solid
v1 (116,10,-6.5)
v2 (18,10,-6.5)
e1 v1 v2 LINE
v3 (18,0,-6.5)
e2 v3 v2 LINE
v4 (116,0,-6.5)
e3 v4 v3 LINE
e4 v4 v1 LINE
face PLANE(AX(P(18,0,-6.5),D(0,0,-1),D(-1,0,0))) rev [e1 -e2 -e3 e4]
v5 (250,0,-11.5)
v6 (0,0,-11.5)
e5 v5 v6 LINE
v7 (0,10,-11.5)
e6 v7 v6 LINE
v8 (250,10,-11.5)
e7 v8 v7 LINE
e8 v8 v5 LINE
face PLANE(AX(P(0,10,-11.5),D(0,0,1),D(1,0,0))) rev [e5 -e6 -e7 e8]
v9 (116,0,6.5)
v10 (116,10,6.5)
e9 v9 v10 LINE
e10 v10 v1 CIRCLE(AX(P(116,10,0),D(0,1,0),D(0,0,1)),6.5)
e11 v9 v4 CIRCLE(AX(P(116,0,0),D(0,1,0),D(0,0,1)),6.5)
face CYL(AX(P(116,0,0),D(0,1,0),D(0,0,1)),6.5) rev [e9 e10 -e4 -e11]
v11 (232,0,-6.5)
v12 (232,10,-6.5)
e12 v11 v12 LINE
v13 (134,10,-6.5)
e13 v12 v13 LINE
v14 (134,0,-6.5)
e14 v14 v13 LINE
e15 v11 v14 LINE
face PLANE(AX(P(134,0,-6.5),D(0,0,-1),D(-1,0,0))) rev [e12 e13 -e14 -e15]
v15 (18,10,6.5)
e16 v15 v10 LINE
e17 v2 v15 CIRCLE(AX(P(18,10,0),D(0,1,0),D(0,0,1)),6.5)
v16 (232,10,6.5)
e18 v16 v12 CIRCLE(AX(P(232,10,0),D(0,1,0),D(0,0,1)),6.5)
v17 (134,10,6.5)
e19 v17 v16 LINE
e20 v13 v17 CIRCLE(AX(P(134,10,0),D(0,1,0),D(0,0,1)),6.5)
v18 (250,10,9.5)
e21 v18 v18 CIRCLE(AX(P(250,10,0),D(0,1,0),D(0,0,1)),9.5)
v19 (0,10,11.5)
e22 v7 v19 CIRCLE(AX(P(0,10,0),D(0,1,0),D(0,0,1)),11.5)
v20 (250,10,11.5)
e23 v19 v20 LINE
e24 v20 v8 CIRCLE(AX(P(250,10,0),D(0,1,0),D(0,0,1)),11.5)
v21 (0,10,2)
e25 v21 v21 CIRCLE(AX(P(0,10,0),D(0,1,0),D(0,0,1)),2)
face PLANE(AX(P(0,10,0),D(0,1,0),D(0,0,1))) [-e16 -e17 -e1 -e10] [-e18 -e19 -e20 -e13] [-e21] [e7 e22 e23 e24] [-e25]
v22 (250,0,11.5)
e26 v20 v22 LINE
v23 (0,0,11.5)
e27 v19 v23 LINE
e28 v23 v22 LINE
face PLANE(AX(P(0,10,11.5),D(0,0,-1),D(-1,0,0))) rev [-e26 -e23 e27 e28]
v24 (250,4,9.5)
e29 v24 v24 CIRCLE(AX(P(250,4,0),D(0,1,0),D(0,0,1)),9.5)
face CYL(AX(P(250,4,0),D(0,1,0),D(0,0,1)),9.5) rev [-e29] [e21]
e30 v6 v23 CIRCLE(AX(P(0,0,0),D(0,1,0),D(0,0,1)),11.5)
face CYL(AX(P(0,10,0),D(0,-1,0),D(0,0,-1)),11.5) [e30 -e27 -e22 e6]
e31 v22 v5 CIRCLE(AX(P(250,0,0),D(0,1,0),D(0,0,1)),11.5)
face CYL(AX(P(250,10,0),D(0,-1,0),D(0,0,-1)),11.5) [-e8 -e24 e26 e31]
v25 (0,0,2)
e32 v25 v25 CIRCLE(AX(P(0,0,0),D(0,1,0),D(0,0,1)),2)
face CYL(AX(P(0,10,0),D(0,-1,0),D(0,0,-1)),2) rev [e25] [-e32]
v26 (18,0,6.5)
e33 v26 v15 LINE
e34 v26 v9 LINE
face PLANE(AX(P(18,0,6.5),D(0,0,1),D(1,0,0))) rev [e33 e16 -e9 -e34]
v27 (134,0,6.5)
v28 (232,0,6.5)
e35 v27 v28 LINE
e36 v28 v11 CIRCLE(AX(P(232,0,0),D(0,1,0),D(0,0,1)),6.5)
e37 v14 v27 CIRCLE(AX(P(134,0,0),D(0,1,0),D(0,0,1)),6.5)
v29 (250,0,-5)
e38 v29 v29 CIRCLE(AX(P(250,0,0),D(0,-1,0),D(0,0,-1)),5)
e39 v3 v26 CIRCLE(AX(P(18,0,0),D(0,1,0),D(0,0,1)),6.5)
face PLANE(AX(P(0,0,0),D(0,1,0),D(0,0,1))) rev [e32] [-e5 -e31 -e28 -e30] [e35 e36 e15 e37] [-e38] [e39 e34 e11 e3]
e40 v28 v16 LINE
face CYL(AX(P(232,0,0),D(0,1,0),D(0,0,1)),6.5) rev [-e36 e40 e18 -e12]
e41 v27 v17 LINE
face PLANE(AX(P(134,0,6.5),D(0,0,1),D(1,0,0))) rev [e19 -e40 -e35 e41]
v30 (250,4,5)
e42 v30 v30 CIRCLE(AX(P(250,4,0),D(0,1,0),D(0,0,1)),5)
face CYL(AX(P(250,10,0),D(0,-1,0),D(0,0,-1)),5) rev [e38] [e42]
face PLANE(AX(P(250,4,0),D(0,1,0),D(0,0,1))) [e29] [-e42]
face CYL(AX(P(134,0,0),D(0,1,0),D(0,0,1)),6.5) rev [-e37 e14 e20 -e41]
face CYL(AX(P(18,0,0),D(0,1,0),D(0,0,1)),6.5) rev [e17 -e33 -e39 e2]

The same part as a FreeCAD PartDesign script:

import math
import FreeCAD as App
import Part
import Sketcher
from FreeCAD import Vector
Q = App.Units.Quantity

doc = App.newDocument("Part")
body = doc.addObject("PartDesign::Body", "Body")

sketch1 = body.newObject("Sketcher::SketchObject", "Sketch")
sketch1.AttachmentSupport = (doc.getObject("XZ_Plane"), [""])
sketch1.MapMode = "FlatFace"
sketch1.addGeometry([
    Part.LineSegment(Vector(250, -11.5, 0), Vector(0, -11.5, 0)),
    Part.ArcOfCircle(Part.Circle(Vector(0, 0, 0), Vector(0, 0, 1), 11.5), math.radians(90), math.radians(270)),
    Part.LineSegment(Vector(0, 11.5, 0), Vector(250, 11.5, 0)),
    Part.ArcOfCircle(Part.Circle(Vector(250, 0, 0), Vector(0, 0, 1), 11.5), math.radians(-90), math.radians(90)),
    Part.Circle(Vector(0, 0, 0), Vector(0, 0, 1), 2),
], False)
sketch1.addConstraint([
    Sketcher.Constraint("Tangent", 0, 2, 1, 2),
    Sketcher.Constraint("Tangent", 1, 1, 2, 1),
    Sketcher.Constraint("Tangent", 2, 2, 3, 2),
    Sketcher.Constraint("Tangent", 3, 1, 0, 1),
    Sketcher.Constraint("Horizontal", 0),
    Sketcher.Constraint("Horizontal", 2),
    Sketcher.Constraint("Coincident", 1, 3, -1, 1),
    Sketcher.Constraint("Coincident", 4, 3, -1, 1),
    Sketcher.Constraint("Diameter", 4, Q("4 mm")),
    Sketcher.Constraint("Radius", 1, Q("11.5 mm")),
    Sketcher.Constraint("DistanceX", 0, 2, 0, 1, Q("250 mm")),
])
pad1 = body.newObject("PartDesign::Pad", "Pad")
pad1.Profile = sketch1
pad1.Length = 10
pad1.Reversed = True

sketch2 = body.newObject("Sketcher::SketchObject", "Sketch001")
sketch2.AttachmentSupport = (doc.getObject("XZ_Plane"), [""])
sketch2.MapMode = "FlatFace"
sketch2.AttachmentOffset = App.Placement(Vector(0, 0, -10), App.Rotation())
sketch2.addGeometry(Part.Circle(Vector(250, 0, 0), Vector(0, 0, 1), 10), False)
sketch2.addConstraint([
    Sketcher.Constraint("PointOnObject", 0, 3, -1),
    Sketcher.Constraint("Diameter", 0, Q("19 mm")),
    Sketcher.Constraint("DistanceX", -1, 1, 0, 3, Q("250 mm")),
])
pocket1 = body.newObject("PartDesign::Pocket", "Pocket")
pocket1.Profile = sketch2
pocket1.Length = 6
pocket1.Reversed = True

sketch3 = body.newObject("Sketcher::SketchObject", "Sketch002")
sketch3.AttachmentSupport = (doc.getObject("XZ_Plane"), [""])
sketch3.MapMode = "FlatFace"
sketch3.addGeometry(Part.Circle(Vector(250, 0, 0), Vector(0, 0, 1), 5), False)
sketch3.addConstraint([
    Sketcher.Constraint("PointOnObject", 0, 3, -1),
    Sketcher.Constraint("Diameter", 0, Q("10 mm")),
    Sketcher.Constraint("DistanceX", -1, 1, 0, 3, Q("250 mm")),
])
pocket2 = body.newObject("PartDesign::Pocket", "Pocket001")
pocket2.Profile = sketch3
pocket2.Type = "ThroughAll"

sketch4 = body.newObject("Sketcher::SketchObject", "Sketch003")
sketch4.AttachmentSupport = (doc.getObject("XZ_Plane"), [""])
sketch4.MapMode = "FlatFace"
sketch4.AttachmentOffset = App.Placement(Vector(0, 0, -10), App.Rotation())
sketch4.addGeometry([
    Part.LineSegment(Vector(116, -6, 0), Vector(18, -6, 0)),
    Part.ArcOfCircle(Part.Circle(Vector(18, 0, 0), Vector(0, 0, 1), 6), math.radians(90), math.radians(270)),
    Part.LineSegment(Vector(18, 6, 0), Vector(116, 6, 0)),
    Part.ArcOfCircle(Part.Circle(Vector(116, 0, 0), Vector(0, 0, 1), 6), math.radians(-90), math.radians(90)),
    Part.LineSegment(Vector(232, -6, 0), Vector(134, -6, 0)),
    Part.ArcOfCircle(Part.Circle(Vector(134, 0, 0), Vector(0, 0, 1), 6), math.radians(90), math.radians(270)),
    Part.LineSegment(Vector(134, 6, 0), Vector(232, 6, 0)),
    Part.ArcOfCircle(Part.Circle(Vector(232, 0, 0), Vector(0, 0, 1), 6), math.radians(-90), math.radians(90)),
], False)
sketch4.addConstraint([
    Sketcher.Constraint("Tangent", 0, 2, 1, 2),
    Sketcher.Constraint("Tangent", 1, 1, 2, 1),
    Sketcher.Constraint("Tangent", 2, 2, 3, 2),
    Sketcher.Constraint("Tangent", 3, 1, 0, 1),
    Sketcher.Constraint("Tangent", 4, 2, 5, 2),
    Sketcher.Constraint("Tangent", 5, 1, 6, 1),
    Sketcher.Constraint("Tangent", 6, 2, 7, 2),
    Sketcher.Constraint("Tangent", 7, 1, 4, 1),
    Sketcher.Constraint("Horizontal", 0),
    Sketcher.Constraint("Horizontal", 2),
    Sketcher.Constraint("Horizontal", 4),
    Sketcher.Constraint("Horizontal", 6),
    Sketcher.Constraint("Equal", 3, 5),
    Sketcher.Constraint("PointOnObject", 1, 3, -1),
    Sketcher.Constraint("PointOnObject", 5, 3, -1),
    Sketcher.Constraint("Equal", 2, 4),
    Sketcher.Constraint("Radius", 1, Q("6.5 mm")),
    Sketcher.Constraint("DistanceX", 0, 2, 0, 1, Q("98 mm")),
    Sketcher.Constraint("DistanceX", -1, 1, 1, 3, Q("18 mm")),
    Sketcher.Constraint("DistanceX", -1, 1, 5, 3, Q("134 mm")),
])
pocket3 = body.newObject("PartDesign::Pocket", "Pocket002")
pocket3.Profile = sketch4
pocket3.Type = "ThroughAll"
pocket3.Reversed = True

doc.recompute()
